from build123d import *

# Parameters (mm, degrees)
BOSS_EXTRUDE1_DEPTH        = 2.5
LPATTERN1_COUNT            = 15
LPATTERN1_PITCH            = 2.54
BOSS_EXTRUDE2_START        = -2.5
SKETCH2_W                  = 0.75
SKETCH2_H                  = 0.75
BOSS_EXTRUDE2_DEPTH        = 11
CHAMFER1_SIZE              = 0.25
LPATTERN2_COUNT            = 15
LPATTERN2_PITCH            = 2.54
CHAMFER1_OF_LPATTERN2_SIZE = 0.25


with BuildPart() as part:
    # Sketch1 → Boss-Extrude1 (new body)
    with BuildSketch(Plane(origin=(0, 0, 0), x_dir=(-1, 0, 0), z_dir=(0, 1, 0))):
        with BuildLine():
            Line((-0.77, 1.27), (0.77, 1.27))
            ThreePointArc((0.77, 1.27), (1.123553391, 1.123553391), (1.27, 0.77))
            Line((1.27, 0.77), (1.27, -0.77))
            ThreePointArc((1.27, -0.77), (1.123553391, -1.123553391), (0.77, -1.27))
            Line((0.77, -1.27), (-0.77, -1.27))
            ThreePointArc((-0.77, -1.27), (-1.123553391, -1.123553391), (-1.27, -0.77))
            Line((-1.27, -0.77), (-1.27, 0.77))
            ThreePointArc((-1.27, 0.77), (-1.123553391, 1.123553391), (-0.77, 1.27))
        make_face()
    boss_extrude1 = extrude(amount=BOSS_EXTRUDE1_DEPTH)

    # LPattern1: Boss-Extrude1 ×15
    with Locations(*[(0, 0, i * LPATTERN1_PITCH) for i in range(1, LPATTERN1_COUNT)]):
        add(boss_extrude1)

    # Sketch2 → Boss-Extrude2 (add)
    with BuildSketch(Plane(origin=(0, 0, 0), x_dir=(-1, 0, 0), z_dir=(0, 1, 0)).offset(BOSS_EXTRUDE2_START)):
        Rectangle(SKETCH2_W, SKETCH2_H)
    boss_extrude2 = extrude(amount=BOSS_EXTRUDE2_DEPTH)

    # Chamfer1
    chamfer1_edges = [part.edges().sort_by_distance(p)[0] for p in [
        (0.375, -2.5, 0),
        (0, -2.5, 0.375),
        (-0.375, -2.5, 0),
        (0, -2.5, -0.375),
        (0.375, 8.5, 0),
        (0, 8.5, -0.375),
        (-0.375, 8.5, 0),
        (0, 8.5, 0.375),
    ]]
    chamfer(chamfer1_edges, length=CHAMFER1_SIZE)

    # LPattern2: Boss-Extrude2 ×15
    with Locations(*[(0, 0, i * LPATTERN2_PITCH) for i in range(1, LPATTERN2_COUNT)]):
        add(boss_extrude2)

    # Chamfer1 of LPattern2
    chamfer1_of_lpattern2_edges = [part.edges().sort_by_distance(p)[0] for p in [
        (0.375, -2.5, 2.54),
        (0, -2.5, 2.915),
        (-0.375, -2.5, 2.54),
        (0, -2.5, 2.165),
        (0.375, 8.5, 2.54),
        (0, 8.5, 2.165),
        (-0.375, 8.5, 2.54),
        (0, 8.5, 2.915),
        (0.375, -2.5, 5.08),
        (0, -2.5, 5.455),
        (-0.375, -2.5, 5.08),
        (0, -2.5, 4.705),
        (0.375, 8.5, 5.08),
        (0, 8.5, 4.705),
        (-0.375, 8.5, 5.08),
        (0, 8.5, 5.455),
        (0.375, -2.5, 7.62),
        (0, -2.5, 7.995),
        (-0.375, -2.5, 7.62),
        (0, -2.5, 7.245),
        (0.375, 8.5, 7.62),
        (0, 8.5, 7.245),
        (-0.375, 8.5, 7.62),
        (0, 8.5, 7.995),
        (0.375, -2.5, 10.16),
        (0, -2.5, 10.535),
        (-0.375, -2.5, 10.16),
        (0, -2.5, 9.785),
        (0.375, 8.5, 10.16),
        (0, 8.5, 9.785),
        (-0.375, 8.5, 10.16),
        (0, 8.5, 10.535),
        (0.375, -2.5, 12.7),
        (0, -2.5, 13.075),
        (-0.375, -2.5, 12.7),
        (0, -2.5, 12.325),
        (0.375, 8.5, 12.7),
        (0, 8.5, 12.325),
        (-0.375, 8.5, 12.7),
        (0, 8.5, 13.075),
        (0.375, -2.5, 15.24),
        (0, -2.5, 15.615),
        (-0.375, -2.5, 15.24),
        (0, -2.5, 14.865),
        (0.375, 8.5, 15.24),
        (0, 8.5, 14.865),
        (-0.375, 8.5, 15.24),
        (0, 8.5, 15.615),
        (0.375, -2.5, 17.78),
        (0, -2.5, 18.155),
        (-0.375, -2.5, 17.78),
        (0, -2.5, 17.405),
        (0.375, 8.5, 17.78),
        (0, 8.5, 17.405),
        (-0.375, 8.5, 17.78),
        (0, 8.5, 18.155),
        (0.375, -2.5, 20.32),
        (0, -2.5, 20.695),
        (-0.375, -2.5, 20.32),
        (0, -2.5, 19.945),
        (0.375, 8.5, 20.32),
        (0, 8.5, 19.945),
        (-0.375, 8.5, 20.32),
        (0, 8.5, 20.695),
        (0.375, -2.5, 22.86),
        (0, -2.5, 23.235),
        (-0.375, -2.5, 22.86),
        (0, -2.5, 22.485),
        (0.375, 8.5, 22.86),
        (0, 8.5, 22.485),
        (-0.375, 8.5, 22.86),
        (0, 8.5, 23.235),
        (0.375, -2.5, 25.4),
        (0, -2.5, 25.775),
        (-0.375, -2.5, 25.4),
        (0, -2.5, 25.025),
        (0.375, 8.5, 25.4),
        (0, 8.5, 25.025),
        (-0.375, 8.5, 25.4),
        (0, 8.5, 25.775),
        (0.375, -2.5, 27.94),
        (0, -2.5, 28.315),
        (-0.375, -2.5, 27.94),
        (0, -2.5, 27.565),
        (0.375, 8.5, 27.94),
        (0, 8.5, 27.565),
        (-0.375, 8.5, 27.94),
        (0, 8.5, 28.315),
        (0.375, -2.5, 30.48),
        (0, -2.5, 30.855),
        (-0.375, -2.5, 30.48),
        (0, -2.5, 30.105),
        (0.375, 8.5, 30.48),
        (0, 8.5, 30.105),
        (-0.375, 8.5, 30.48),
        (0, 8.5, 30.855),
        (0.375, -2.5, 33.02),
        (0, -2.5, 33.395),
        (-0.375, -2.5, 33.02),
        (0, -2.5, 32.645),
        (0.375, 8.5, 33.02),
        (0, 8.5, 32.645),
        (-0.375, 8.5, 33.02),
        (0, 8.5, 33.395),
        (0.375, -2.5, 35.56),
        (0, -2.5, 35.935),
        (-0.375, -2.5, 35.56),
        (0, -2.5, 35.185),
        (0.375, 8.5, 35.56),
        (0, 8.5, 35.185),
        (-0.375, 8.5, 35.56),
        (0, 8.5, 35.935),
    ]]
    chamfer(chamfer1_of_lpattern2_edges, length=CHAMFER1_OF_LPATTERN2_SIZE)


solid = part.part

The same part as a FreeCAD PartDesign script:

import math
import FreeCAD as App
import Part
import Sketcher
from FreeCAD import Vector
Q = App.Units.Quantity


def edges_at(feature, points):
    """Names of the edges that pass closest to the given points."""
    edges = feature.Shape.Edges
    near = lambda p: min(range(len(edges)), key=lambda i: edges[i].distToShape(Part.Vertex(*p))[0])
    return sorted({f"Edge{near(p) + 1}" for p in points})


def add_polygon(sketch, points):
    """Adds a closed chain of lines whose ends are joined by coincident constraints."""
    first, n = sketch.GeometryCount, len(points)
    for a, b in zip(points, points[1:] + points[:1]):
        sketch.addGeometry(Part.LineSegment(App.Vector(*a, 0), App.Vector(*b, 0)), False)
    for i in range(n):
        sketch.addConstraint(Sketcher.Constraint("Coincident", first + i, 2, first + (i + 1) % n, 1))

doc = App.newDocument("Part")
params = doc.addObject("Spreadsheet::Sheet", "Params")
for row, (alias, value) in enumerate([
    ("sketch1_radius", "0.5 mm"),
    ("sketch1_width", "1.54 mm"),
    ("pad1_length", "2.5 mm"),
    ("linearpattern_pitch", "2.54 mm"),
    ("sketch2_width", "0.75 mm"),
    ("pad2_length", "11 mm"),
    ("chamfer_size", "0.25 mm"),
    ("linearpattern2_pitch", "2.54 mm"),
    ("chamfer2_size", "0.25 mm"),
], start=1):
    params.set(f"A{row}", alias)
    params.set(f"B{row}", "=" + value)
    params.setAlias(f"B{row}", alias)

body = doc.addObject("PartDesign::Body", "Body")

sketch1 = body.newObject("Sketcher::SketchObject", "Sketch")
sketch1.AttachmentSupport = (doc.getObject("XZ_Plane"), [""])
sketch1.MapMode = "FlatFace"
sketch1.addGeometry([
    Part.LineSegment(Vector(-0.77, 1.27, 0), Vector(0.77, 1.27, 0)),
    Part.ArcOfCircle(Part.Circle(Vector(0.77, 0.77, 0), Vector(0, 0, 1), 0.5), math.radians(0), math.radians(90)),
    Part.LineSegment(Vector(1.27, 0.77, 0), Vector(1.27, -0.77, 0)),
    Part.ArcOfCircle(Part.Circle(Vector(0.77, -0.77, 0), Vector(0, 0, 1), 0.5), math.radians(-90), math.radians(0)),
    Part.LineSegment(Vector(0.77, -1.27, 0), Vector(-0.77, -1.27, 0)),
    Part.ArcOfCircle(Part.Circle(Vector(-0.77, -0.77, 0), Vector(0, 0, 1), 0.5), math.radians(180), math.radians(270)),
    Part.LineSegment(Vector(-1.27, -0.77, 0), Vector(-1.27, 0.77, 0)),
    Part.ArcOfCircle(Part.Circle(Vector(-0.77, 0.77, 0), Vector(0, 0, 1), 0.5), math.radians(90), math.radians(180)),
], False)
sketch1.addConstraint([
    Sketcher.Constraint("Tangent", 0, 2, 1, 2),
    Sketcher.Constraint("Tangent", 1, 1, 2, 1),
    Sketcher.Constraint("Tangent", 2, 2, 3, 2),
    Sketcher.Constraint("Tangent", 3, 1, 4, 1),
    Sketcher.Constraint("Tangent", 4, 2, 5, 2),
    Sketcher.Constraint("Tangent", 5, 1, 6, 1),
    Sketcher.Constraint("Tangent", 6, 2, 7, 2),
    Sketcher.Constraint("Tangent", 7, 1, 0, 1),
    Sketcher.Constraint("Horizontal", 0),
    Sketcher.Constraint("Vertical", 2),
    Sketcher.Constraint("Horizontal", 4),
    Sketcher.Constraint("Vertical", 6),
    Sketcher.Constraint("Equal", 1, 3),
    Sketcher.Constraint("Equal", 3, 5),
    Sketcher.Constraint("Equal", 5, 7),
    Sketcher.Constraint("Symmetric", 1, 3, 5, 3, -1, 1),
    Sketcher.Constraint("Equal", 4, 2),
    Sketcher.Constraint("Radius", 1, Q("0.5 mm")),
    Sketcher.Constraint("DistanceX", 0, 1, 0, 2, Q("1.54 mm")),
])
sketch1.setExpression("Constraints[17]", "Params.sketch1_radius")
sketch1.setExpression("Constraints[18]", "Params.sketch1_width")
pad1 = body.newObject("PartDesign::Pad", "Pad")
pad1.Profile = sketch1
pad1.setExpression("Length", "Params.pad1_length")
pad1.Reversed = True
doc.recompute()

linearpattern = body.newObject("PartDesign::LinearPattern", "LinearPattern")
linearpattern.Originals = [pad1]
linearpattern.Direction = (doc.getObject("Z_Axis"), [""])
linearpattern.Mode = "offset"
linearpattern.setExpression("Offset", "Params.linearpattern_pitch")
linearpattern.Occurrences = 15
body.Tip = linearpattern

sketch2 = body.newObject("Sketcher::SketchObject", "Sketch001")
sketch2.AttachmentSupport = (doc.getObject("XZ_Plane"), [""])
sketch2.MapMode = "FlatFace"
sketch2.AttachmentOffset = App.Placement(Vector(0, 0, 2.5), App.Rotation())
add_polygon(sketch2, [(0.375, 0.375), (0.375, -0.375), (-0.375, -0.375), (-0.375, 0.375)])
sketch2.addConstraint([
    Sketcher.Constraint("Vertical", 0),
    Sketcher.Constraint("Horizontal", 1),
    Sketcher.Constraint("Vertical", 2),
    Sketcher.Constraint("Horizontal", 3),
    Sketcher.Constraint("Symmetric", 0, 2, 2, 2, -1, 1),
    Sketcher.Constraint("Equal", 3, 0),
    Sketcher.Constraint("DistanceX", 1, 2, 1, 1, Q("0.75 mm")),
])
sketch2.setExpression("Constraints[10]", "Params.sketch2_width")
pad2 = body.newObject("PartDesign::Pad", "Pad001")
pad2.Profile = sketch2
pad2.setExpression("Length", "Params.pad2_length")
pad2.Reversed = True
doc.recompute()

chamfer = body.newObject("PartDesign::Chamfer", "Chamfer")
chamfer.Base = (pad2, edges_at(pad2, [
    (0.375, -2.5, 0),
    (0, -2.5, 0.375),
    (-0.375, -2.5, 0),
    (0, -2.5, -0.375),
    (0.375, 8.5, 0),
    (0, 8.5, -0.375),
    (-0.375, 8.5, 0),
    (0, 8.5, 0.375),
]))
chamfer.setExpression("Size", "Params.chamfer_size")
doc.recompute()

linearpattern2 = body.newObject("PartDesign::LinearPattern", "LinearPattern001")
linearpattern2.Originals = [pad2]
linearpattern2.Direction = (doc.getObject("Z_Axis"), [""])
linearpattern2.Mode = "offset"
linearpattern2.setExpression("Offset", "Params.linearpattern2_pitch")
linearpattern2.Occurrences = 15
body.Tip = linearpattern2
doc.recompute()

chamfer2 = body.newObject("PartDesign::Chamfer", "Chamfer001")
chamfer2.Base = (linearpattern2, edges_at(linearpattern2, [
    (0.375, -2.5, 2.54),
    (0, -2.5, 2.915),
    (-0.375, -2.5, 2.54),
    (0, -2.5, 2.165),
    (0.375, 8.5, 2.54),
    (0, 8.5, 2.165),
    (-0.375, 8.5, 2.54),
    (0, 8.5, 2.915),
    (0.375, -2.5, 5.08),
    (0, -2.5, 5.455),
    (-0.375, -2.5, 5.08),
    (0, -2.5, 4.705),
    (0.375, 8.5, 5.08),
    (0, 8.5, 4.705),
    (-0.375, 8.5, 5.08),
    (0, 8.5, 5.455),
    (0.375, -2.5, 7.62),
    (0, -2.5, 7.995),
    (-0.375, -2.5, 7.62),
    (0, -2.5, 7.245),
    (0.375, 8.5, 7.62),
    (0, 8.5, 7.245),
    (-0.375, 8.5, 7.62),
    (0, 8.5, 7.995),
    (0.375, -2.5, 10.16),
    (0, -2.5, 10.535),
    (-0.375, -2.5, 10.16),
    (0, -2.5, 9.785),
    (0.375, 8.5, 10.16),
    (0, 8.5, 9.785),
    (-0.375, 8.5, 10.16),
    (0, 8.5, 10.535),
    (0.375, -2.5, 12.7),
    (0, -2.5, 13.075),
    (-0.375, -2.5, 12.7),
    (0, -2.5, 12.325),
    (0.375, 8.5, 12.7),
    (0, 8.5, 12.325),
    (-0.375, 8.5, 12.7),
    (0, 8.5, 13.075),
    (0.375, -2.5, 15.24),
    (0, -2.5, 15.615),
    (-0.375, -2.5, 15.24),
    (0, -2.5, 14.865),
    (0.375, 8.5, 15.24),
    (0, 8.5, 14.865),
    (-0.375, 8.5, 15.24),
    (0, 8.5, 15.615),
    (0.375, -2.5, 17.78),
    (0, -2.5, 18.155),
    (-0.375, -2.5, 17.78),
    (0, -2.5, 17.405),
    (0.375, 8.5, 17.78),
    (0, 8.5, 17.405),
    (-0.375, 8.5, 17.78),
    (0, 8.5, 18.155),
    (0.375, -2.5, 20.32),
    (0, -2.5, 20.695),
    (-0.375, -2.5, 20.32),
    (0, -2.5, 19.945),
    (0.375, 8.5, 20.32),
    (0, 8.5, 19.945),
    (-0.375, 8.5, 20.32),
    (0, 8.5, 20.695),
    (0.375, -2.5, 22.86),
    (0, -2.5, 23.235),
    (-0.375, -2.5, 22.86),
    (0, -2.5, 22.485),
    (0.375, 8.5, 22.86),
    (0, 8.5, 22.485),
    (-0.375, 8.5, 22.86),
    (0, 8.5, 23.235),
    (0.375, -2.5, 25.4),
    (0, -2.5, 25.775),
    (-0.375, -2.5, 25.4),
    (0, -2.5, 25.025),
    (0.375, 8.5, 25.4),
    (0, 8.5, 25.025),
    (-0.375, 8.5, 25.4),
    (0, 8.5, 25.775),
    (0.375, -2.5, 27.94),
    (0, -2.5, 28.315),
    (-0.375, -2.5, 27.94),
    (0, -2.5, 27.565),
    (0.375, 8.5, 27.94),
    (0, 8.5, 27.565),
    (-0.375, 8.5, 27.94),
    (0, 8.5, 28.315),
    (0.375, -2.5, 30.48),
    (0, -2.5, 30.855),
    (-0.375, -2.5, 30.48),
    (0, -2.5, 30.105),
    (0.375, 8.5, 30.48),
    (0, 8.5, 30.105),
    (-0.375, 8.5, 30.48),
    (0, 8.5, 30.855),
    (0.375, -2.5, 33.02),
    (0, -2.5, 33.395),
    (-0.375, -2.5, 33.02),
    (0, -2.5, 32.645),
    (0.375, 8.5, 33.02),
    (0, 8.5, 32.645),
    (-0.375, 8.5, 33.02),
    (0, 8.5, 33.395),
    (0.375, -2.5, 35.56),
    (0, -2.5, 35.935),
    (-0.375, -2.5, 35.56),
    (0, -2.5, 35.185),
    (0.375, 8.5, 35.56),
    (0, 8.5, 35.185),
    (-0.375, 8.5, 35.56),
    (0, 8.5, 35.935),
]))
chamfer2.setExpression("Size", "Params.chamfer2_size")

doc.recompute()
